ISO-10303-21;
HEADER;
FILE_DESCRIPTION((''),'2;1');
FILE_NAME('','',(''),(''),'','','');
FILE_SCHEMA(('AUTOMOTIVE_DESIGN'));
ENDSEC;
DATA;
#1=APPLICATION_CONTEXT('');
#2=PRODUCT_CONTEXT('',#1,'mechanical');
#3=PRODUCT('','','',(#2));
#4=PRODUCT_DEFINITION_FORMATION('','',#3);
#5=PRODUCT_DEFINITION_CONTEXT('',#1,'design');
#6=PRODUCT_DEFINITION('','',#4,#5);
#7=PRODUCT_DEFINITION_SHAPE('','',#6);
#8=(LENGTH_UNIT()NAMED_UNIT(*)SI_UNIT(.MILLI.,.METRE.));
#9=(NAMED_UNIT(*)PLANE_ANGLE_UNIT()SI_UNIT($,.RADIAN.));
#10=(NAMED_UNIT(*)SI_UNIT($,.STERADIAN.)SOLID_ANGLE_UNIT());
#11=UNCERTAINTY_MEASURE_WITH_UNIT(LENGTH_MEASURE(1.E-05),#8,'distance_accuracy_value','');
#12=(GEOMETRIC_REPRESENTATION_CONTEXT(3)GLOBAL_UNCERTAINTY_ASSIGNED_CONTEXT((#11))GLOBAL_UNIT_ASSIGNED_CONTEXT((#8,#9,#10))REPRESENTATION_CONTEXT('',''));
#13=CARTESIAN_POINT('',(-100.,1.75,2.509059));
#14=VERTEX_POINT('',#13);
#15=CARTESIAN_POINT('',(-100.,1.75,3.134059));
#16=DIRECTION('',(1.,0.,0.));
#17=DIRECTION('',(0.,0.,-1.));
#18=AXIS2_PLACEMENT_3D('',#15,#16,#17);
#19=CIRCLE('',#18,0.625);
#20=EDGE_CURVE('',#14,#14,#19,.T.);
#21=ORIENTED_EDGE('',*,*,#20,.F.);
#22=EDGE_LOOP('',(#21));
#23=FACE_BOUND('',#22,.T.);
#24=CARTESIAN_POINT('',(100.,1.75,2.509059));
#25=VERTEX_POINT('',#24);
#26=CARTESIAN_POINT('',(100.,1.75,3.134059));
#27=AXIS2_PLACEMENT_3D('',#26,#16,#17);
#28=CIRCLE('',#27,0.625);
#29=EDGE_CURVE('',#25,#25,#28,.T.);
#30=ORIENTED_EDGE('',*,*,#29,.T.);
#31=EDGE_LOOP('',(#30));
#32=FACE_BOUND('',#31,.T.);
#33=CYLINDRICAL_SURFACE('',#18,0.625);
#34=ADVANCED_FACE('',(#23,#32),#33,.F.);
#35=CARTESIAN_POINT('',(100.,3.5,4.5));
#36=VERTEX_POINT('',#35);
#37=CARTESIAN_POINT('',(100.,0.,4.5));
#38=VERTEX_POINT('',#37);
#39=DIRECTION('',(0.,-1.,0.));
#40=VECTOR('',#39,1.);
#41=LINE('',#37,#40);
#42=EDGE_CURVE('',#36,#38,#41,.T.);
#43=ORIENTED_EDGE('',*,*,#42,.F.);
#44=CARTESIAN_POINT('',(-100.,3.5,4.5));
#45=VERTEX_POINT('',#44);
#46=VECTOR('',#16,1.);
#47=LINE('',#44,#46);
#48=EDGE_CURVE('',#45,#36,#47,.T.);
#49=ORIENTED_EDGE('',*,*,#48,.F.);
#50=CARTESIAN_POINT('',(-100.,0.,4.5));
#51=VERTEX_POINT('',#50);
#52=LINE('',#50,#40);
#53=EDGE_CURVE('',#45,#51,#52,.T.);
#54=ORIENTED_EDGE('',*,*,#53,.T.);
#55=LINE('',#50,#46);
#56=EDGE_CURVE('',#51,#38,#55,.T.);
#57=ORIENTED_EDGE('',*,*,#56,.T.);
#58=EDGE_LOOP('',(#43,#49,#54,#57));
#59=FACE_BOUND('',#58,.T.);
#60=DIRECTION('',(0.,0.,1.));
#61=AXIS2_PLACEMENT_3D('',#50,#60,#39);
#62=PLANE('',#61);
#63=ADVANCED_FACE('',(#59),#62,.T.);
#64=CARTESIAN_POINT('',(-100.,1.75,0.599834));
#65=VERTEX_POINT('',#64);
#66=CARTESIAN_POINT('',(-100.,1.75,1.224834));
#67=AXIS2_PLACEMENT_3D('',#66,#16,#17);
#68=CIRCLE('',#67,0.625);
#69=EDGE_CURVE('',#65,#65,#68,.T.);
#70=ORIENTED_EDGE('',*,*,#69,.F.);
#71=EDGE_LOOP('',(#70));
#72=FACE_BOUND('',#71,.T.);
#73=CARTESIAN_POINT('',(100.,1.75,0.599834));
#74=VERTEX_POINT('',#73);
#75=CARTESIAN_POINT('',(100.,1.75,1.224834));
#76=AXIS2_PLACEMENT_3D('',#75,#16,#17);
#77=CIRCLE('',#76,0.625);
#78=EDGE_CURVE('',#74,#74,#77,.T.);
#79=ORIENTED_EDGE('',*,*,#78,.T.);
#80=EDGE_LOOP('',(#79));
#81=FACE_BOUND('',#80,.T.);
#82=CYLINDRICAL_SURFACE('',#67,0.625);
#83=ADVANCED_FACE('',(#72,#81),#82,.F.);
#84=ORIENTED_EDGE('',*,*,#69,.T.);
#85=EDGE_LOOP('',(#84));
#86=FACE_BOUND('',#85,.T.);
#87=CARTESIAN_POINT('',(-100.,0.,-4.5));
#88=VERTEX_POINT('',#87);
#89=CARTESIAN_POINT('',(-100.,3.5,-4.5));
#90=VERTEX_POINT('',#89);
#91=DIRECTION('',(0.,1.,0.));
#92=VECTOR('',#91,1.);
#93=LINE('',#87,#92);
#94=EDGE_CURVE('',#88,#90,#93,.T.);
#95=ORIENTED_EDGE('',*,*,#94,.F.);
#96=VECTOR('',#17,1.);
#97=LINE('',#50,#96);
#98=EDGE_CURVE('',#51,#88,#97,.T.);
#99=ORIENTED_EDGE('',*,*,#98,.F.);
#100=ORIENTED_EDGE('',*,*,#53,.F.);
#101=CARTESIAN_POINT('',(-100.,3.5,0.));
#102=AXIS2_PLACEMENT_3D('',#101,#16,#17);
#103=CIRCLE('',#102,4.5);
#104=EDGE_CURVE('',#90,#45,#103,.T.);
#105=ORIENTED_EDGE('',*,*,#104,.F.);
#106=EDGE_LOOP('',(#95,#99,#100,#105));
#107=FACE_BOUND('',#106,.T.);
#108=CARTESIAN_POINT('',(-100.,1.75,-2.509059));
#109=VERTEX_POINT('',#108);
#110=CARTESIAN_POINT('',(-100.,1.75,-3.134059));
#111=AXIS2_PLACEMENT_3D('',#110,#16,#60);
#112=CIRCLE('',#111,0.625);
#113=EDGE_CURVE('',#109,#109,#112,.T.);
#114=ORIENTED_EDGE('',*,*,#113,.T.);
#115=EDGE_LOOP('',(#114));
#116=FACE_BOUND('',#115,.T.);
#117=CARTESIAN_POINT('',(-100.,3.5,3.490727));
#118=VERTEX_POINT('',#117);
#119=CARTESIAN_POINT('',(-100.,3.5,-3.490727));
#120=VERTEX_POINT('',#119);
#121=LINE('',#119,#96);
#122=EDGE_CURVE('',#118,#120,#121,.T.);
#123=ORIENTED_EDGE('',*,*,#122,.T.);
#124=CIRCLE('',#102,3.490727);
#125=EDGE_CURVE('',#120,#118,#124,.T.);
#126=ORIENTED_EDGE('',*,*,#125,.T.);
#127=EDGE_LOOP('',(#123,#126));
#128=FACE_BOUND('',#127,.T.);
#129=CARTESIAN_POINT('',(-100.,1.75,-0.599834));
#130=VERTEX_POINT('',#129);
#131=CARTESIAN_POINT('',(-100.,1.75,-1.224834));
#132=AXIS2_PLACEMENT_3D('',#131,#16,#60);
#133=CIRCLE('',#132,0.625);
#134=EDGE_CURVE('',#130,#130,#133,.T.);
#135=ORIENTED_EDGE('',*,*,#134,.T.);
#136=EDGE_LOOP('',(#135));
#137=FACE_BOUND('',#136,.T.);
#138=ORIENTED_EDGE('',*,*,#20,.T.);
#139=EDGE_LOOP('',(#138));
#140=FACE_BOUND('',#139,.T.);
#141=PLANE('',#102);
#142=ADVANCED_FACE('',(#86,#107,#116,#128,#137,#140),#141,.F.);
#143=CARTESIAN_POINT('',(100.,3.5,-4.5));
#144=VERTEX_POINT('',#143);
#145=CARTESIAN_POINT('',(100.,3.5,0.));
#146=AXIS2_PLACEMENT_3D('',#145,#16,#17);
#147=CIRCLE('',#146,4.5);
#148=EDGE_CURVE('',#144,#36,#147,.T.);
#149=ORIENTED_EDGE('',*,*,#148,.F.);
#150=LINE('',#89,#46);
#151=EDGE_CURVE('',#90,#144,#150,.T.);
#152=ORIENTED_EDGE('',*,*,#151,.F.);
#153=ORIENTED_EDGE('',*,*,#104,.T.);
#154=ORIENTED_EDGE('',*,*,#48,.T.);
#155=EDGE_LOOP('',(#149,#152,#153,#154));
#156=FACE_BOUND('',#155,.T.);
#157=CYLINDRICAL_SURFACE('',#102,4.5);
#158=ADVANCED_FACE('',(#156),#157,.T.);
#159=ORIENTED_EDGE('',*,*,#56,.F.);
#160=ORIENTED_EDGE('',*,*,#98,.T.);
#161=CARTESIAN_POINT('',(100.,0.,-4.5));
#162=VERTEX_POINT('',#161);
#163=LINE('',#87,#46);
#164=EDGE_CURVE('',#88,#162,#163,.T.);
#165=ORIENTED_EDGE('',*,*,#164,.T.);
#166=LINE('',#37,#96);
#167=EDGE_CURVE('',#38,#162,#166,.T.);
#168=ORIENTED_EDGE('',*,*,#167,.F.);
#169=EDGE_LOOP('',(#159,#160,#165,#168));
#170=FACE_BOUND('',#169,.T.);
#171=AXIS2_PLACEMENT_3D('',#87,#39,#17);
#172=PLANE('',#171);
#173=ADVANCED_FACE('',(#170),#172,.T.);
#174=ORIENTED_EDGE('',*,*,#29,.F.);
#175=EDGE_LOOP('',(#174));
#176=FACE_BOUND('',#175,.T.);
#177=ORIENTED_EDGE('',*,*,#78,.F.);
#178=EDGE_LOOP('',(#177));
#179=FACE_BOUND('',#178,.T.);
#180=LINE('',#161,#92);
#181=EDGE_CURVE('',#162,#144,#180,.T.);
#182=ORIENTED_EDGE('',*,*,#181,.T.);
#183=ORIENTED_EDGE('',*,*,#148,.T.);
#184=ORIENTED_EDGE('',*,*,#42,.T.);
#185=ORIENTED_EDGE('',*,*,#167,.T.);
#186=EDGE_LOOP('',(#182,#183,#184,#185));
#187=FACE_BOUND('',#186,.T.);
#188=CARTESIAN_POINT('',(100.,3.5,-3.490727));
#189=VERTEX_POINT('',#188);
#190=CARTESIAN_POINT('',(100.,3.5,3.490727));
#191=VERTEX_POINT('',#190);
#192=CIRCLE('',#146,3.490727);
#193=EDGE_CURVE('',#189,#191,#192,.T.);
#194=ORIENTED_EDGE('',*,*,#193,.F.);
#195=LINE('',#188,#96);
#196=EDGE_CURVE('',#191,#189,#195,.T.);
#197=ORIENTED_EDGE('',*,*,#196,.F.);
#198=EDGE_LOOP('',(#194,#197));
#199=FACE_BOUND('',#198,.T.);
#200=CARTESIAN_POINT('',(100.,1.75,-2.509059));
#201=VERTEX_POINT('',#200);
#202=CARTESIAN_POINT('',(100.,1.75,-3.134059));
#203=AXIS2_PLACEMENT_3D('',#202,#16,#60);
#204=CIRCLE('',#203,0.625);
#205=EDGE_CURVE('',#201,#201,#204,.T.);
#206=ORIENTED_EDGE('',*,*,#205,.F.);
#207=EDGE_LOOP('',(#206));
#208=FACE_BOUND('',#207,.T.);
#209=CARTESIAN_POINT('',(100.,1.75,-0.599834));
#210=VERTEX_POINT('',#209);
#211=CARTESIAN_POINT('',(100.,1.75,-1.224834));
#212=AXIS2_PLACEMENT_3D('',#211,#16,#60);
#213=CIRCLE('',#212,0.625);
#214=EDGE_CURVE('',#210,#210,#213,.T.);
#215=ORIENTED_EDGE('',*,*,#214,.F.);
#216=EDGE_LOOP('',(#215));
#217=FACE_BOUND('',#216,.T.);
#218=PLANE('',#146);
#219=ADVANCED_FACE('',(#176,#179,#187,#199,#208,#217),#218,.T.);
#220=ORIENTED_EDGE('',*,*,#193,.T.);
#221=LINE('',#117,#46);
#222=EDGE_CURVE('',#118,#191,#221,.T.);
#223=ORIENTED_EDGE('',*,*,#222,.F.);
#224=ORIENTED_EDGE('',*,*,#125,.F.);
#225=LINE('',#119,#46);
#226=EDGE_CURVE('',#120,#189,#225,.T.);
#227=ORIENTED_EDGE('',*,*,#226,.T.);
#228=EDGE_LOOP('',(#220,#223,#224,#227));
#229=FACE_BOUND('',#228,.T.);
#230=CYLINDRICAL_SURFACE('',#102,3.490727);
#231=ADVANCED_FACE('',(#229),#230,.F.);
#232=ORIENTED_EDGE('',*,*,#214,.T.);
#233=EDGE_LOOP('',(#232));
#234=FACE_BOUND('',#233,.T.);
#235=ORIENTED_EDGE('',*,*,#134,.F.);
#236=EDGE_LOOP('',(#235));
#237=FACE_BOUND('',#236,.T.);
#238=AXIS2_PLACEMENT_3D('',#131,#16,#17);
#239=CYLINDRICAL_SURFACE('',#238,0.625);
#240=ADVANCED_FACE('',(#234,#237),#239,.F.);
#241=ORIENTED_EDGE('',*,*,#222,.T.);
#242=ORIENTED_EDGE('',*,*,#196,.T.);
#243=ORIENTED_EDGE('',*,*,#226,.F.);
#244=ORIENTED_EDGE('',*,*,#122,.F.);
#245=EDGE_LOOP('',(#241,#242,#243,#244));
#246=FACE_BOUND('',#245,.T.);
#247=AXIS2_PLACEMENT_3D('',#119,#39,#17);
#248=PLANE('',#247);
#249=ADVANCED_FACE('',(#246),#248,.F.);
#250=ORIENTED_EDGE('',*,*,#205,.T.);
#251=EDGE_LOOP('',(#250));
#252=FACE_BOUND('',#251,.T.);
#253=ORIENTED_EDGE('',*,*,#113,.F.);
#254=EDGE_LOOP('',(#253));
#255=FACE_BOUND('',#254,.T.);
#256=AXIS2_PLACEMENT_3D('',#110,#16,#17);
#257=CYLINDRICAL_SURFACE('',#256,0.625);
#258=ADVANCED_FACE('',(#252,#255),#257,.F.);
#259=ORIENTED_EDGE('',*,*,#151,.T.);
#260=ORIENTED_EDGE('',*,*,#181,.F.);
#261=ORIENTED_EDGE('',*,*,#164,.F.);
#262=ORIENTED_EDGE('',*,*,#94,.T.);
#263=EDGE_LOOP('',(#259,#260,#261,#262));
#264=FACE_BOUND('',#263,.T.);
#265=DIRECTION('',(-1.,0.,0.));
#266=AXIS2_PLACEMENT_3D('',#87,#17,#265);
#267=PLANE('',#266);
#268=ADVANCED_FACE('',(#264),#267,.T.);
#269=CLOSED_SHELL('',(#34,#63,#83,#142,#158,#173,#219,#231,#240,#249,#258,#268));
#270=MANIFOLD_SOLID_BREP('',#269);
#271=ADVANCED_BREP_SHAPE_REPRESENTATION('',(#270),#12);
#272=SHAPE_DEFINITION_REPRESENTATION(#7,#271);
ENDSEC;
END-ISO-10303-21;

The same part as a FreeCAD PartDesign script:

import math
import FreeCAD as App
import Part
import Sketcher

V = App.Vector
Q = App.Units.Quantity

doc = App.newDocument("Part")
body = doc.addObject("PartDesign::Body", "Body")

sketch1 = doc.addObject("Sketcher::SketchObject", "Sketch")
body.addObject(sketch1)
sketch1.AttachmentSupport = (doc.YZ_Plane, [""])
sketch1.MapMode = "FlatFace"
sketch1.addGeometry(Part.LineSegment(V(0, 4.5, 0), V(0, -4.5, 0)), False)
sketch1.addGeometry(Part.LineSegment(V(0, -4.5, 0), V(3.5, -4.5, 0)), False)
sketch1.addGeometry(Part.ArcOfCircle(Part.Circle(V(3.5, 0, 0), V(0, 0, 1), 4.5), math.radians(-90), math.radians(90)), False)
sketch1.addGeometry(Part.LineSegment(V(3.5, 4.5, 0), V(0, 4.5, 0)), False)
sketch1.addGeometry(Part.Circle(V(1.8, 3.1, 0), V(0, 0, 1), 0.6), False)
sketch1.addGeometry(Part.Circle(V(1.8, 1.2, 0), V(0, 0, 1), 0.6), False)
sketch1.addGeometry(Part.Circle(V(1.8, -1.2, 0), V(0, 0, 1), 0.6), False)
sketch1.addGeometry(Part.Circle(V(1.8, -3.1, 0), V(0, 0, 1), 0.6), False)
sketch1.addGeometry(Part.ArcOfCircle(Part.Circle(V(3.5, 0, 0), V(0, 0, 1), 3.5), math.radians(-90), math.radians(90)), False)
sketch1.addGeometry(Part.LineSegment(V(3.5, -3.5, 0), V(3.5, 3.5, 0)), False)
sketch1.addConstraint(Sketcher.Constraint("Coincident", 0, 2, 1, 1))
sketch1.addConstraint(Sketcher.Constraint("Tangent", 1, 2, 2, 1))
sketch1.addConstraint(Sketcher.Constraint("Tangent", 2, 2, 3, 1))
sketch1.addConstraint(Sketcher.Constraint("Coincident", 3, 2, 0, 1))
sketch1.addConstraint(Sketcher.Constraint("Coincident", 8, 1, 9, 1))
sketch1.addConstraint(Sketcher.Constraint("Coincident", 9, 2, 8, 2))
sketch1.addConstraint(Sketcher.Constraint("Vertical", 0))
sketch1.addConstraint(Sketcher.Constraint("Horizontal", 1))
sketch1.addConstraint(Sketcher.Constraint("Horizontal", 3))
sketch1.addConstraint(Sketcher.Constraint("Vertical", 9))
sketch1.addConstraint(Sketcher.Constraint("Coincident", 8, 3, 2, 3))
sketch1.addConstraint(Sketcher.Constraint("Equal", 4, 5))
sketch1.addConstraint(Sketcher.Constraint("Equal", 5, 6))
sketch1.addConstraint(Sketcher.Constraint("Equal", 6, 7))
sketch1.addConstraint(Sketcher.Constraint("Symmetric", 0, 2, 3, 2, -1, 1))
sketch1.addConstraint(Sketcher.Constraint("Symmetric", 5, 3, 6, 3, -1))
sketch1.addConstraint(Sketcher.Constraint("Symmetric", 4, 3, 7, 3, -1))
sketch1.addConstraint(Sketcher.Constraint("Vertical", 4, 3, 5, 3))
sketch1.addConstraint(Sketcher.Constraint("Vertical", 2, 2, 8, 1))
sketch1.addConstraint(Sketcher.Constraint("Radius", 2, Q("4.5 mm")))
sketch1.addConstraint(Sketcher.Constraint("Diameter", 4, Q("1.25 mm")))
sketch1.addConstraint(Sketcher.Constraint("DistanceX", 1, 1, 1, 2, Q("3.5 mm")))
sketch1.addConstraint(Sketcher.Constraint("DistanceX", -1, 1, 4, 3, Q("1.75 mm")))
sketch1.addConstraint(Sketcher.Constraint("Radius", 8, Q("3.490727 mm")))
sketch1.addConstraint(Sketcher.Constraint("DistanceY", -1, 1, 4, 3, Q("3.134059 mm")))
sketch1.addConstraint(Sketcher.Constraint("DistanceY", -1, 1, 5, 3, Q("1.224834 mm")))
pad1 = doc.addObject("PartDesign::Pad", "Pad")
body.addObject(pad1)
pad1.Profile = sketch1
pad1.Type = "TwoLengths"
pad1.Length = 100
pad1.Length2 = 100

doc.recompute()
